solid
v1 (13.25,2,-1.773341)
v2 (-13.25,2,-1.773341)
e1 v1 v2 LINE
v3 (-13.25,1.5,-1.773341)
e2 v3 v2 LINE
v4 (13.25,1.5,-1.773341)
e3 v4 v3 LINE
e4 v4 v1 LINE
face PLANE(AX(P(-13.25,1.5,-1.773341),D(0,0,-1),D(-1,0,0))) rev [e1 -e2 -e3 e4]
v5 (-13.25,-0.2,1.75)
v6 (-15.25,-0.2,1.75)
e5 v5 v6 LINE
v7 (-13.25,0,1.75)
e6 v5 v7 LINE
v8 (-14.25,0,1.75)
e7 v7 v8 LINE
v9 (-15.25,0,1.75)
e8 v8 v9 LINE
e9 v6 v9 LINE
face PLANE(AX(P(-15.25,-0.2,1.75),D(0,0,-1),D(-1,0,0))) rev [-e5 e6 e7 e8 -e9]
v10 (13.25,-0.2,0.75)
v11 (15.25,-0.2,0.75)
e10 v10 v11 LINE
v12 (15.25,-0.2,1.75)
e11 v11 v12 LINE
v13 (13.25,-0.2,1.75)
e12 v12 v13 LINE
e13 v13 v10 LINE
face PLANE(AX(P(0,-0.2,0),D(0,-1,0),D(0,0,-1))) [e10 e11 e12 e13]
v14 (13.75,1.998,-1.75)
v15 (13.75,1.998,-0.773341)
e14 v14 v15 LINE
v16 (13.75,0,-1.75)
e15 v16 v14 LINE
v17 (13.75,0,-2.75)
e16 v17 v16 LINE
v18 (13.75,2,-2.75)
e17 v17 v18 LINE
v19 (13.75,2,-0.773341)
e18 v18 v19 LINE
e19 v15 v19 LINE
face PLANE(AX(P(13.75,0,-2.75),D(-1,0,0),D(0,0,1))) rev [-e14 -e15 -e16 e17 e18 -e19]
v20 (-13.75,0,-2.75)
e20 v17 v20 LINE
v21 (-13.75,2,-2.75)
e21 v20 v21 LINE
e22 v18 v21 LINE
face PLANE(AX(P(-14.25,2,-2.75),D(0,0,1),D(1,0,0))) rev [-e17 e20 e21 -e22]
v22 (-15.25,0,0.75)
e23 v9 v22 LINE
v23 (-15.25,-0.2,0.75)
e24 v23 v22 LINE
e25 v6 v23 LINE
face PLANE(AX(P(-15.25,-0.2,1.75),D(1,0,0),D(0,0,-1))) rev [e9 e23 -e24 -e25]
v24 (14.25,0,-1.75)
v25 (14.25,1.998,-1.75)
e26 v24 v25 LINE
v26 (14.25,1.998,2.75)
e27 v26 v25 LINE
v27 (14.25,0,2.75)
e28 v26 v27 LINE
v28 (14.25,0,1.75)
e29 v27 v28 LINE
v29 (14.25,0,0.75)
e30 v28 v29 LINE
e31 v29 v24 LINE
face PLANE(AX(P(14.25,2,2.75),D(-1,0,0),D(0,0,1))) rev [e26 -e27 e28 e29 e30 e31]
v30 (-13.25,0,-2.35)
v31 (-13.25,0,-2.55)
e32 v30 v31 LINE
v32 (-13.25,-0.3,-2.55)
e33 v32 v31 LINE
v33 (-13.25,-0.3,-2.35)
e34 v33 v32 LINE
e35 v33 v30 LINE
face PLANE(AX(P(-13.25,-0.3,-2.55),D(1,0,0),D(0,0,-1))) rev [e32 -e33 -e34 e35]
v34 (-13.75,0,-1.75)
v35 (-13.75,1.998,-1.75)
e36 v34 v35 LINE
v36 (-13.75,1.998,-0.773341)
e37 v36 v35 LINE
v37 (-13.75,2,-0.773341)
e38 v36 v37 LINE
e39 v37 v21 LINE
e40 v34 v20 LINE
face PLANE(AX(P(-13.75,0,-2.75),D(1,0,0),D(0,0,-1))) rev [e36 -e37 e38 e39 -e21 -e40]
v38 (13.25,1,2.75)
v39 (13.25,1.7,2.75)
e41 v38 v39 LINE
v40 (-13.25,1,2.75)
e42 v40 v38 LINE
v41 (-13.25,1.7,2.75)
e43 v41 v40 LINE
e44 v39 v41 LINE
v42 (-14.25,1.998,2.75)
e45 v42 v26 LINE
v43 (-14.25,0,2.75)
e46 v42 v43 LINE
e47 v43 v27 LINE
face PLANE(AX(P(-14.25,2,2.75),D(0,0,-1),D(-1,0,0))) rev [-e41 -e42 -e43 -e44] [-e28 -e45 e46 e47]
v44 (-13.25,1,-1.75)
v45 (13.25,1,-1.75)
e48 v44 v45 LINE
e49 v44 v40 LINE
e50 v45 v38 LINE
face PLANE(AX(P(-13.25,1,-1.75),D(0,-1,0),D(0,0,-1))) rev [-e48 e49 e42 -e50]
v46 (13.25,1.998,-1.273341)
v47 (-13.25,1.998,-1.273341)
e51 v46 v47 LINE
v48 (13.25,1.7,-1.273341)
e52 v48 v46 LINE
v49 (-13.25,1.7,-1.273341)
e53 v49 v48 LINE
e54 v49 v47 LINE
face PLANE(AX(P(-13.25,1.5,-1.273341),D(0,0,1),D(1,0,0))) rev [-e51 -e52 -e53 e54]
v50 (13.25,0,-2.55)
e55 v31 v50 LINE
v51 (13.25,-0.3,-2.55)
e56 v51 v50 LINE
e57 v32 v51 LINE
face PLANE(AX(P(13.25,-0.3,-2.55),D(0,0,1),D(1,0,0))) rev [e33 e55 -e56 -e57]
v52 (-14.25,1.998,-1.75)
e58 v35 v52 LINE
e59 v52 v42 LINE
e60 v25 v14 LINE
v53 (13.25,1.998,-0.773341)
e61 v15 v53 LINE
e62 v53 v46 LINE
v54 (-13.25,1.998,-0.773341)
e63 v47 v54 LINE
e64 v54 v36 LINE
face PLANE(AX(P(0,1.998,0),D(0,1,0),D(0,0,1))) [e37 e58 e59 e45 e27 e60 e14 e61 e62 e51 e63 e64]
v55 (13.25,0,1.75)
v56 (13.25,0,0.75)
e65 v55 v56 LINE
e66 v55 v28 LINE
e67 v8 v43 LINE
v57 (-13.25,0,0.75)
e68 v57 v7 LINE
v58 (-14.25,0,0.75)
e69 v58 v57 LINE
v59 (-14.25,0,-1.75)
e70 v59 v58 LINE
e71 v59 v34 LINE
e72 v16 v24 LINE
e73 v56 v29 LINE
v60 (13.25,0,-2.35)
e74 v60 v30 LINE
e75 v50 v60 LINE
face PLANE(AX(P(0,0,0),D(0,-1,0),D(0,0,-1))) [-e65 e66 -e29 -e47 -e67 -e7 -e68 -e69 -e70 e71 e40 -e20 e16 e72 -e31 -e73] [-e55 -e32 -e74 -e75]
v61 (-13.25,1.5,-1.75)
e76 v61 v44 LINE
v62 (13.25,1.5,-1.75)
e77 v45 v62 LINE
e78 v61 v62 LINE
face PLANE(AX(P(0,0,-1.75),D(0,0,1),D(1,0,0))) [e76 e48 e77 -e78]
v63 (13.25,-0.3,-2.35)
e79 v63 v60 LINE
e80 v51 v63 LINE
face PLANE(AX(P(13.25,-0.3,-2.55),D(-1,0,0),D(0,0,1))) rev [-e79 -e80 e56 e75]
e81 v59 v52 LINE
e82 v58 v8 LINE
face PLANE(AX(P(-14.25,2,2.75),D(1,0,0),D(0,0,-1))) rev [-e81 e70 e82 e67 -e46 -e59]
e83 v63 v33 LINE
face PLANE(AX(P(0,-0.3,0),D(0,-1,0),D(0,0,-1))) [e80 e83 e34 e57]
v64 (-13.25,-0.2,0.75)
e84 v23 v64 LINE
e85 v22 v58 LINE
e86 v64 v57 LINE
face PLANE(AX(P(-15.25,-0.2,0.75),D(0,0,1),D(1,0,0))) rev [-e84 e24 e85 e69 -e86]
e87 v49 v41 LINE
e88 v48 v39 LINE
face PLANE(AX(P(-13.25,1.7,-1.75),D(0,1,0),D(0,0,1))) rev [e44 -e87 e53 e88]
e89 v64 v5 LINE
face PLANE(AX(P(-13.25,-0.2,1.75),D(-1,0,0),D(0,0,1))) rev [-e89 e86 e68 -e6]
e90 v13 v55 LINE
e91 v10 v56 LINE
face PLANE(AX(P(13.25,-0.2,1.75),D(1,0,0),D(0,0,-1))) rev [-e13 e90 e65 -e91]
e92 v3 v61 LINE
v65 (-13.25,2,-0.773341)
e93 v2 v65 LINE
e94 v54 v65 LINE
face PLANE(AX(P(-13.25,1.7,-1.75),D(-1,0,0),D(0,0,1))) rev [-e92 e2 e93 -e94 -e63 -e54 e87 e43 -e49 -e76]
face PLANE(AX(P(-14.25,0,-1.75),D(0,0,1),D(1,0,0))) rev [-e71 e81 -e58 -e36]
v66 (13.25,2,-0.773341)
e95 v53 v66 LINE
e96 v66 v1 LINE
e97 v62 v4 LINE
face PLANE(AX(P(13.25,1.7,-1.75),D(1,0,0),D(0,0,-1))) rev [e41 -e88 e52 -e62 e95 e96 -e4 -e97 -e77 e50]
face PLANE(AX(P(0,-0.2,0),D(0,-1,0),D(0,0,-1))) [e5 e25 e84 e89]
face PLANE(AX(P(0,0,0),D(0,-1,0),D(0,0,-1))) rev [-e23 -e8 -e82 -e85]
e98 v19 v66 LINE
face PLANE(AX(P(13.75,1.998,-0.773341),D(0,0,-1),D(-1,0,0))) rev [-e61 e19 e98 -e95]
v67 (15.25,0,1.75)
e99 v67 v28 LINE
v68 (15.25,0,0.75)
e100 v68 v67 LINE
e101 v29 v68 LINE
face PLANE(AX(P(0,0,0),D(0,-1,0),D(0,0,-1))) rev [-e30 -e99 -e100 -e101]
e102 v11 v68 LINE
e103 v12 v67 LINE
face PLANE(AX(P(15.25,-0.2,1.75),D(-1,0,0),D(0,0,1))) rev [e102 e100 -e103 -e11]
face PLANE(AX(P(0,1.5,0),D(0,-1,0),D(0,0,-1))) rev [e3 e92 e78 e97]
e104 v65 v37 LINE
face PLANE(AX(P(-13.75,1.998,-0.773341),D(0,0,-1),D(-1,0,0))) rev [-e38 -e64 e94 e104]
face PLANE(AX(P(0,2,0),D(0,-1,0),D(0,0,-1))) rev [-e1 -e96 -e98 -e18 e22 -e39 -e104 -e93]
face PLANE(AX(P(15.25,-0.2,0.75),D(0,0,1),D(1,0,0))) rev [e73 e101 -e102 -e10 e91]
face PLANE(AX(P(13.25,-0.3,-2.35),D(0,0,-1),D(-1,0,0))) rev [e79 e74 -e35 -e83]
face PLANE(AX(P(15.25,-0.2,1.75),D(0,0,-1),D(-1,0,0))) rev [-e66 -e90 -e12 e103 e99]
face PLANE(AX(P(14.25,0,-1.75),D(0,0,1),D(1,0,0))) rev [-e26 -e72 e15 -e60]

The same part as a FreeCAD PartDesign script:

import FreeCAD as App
import Part
import Sketcher
from FreeCAD import Vector

doc = App.newDocument("Part")
params = doc.addObject("Spreadsheet::Sheet", "Params")
for row, (alias, value) in enumerate([
    ("sketch1_width", "28.5 mm"),
    ("sketch1_height", "5.5 mm"),
    ("pad1_length", "2 mm"),
    ("sketch2_height", "1 mm"),
    ("sketch2_width", "0.5 mm"),
    ("sketch3_width", "2 mm"),
    ("sketch3_height", "1 mm"),
    ("pad2_length", "0.2 mm"),
    ("sketch4_width", "26.5 mm"),
    ("sketch4_height", "0.2 mm"),
    ("pad3_length", "0.3 mm"),
    ("sketch5_width", "26.5 mm"),
    ("sketch5_height", "0.7 mm"),
    ("pocket2_length", "4.5 mm"),
    ("sketch6_width", "0.5 mm"),
    ("sketch6_width2", "28.5 mm"),
    ("sketch6_height", "4.5 mm"),
    ("pocket3_length", "0.002 mm"),
    ("sketch7_width", "26.5 mm"),
    ("sketch7_height", "0.5 mm"),
    ("pocket4_length", "0.5 mm"),
], start=1):
    params.set(f"A{row}", alias)
    params.set(f"B{row}", "=" + value)
    params.setAlias(f"B{row}", alias)

body = doc.addObject("PartDesign::Body", "Body")

sketch1 = body.newObject("Sketcher::SketchObject", "Sketch")
sketch1.AttachmentSupport = (doc.getObject("XZ_Plane"), [""])
sketch1.MapMode = "FlatFace"
sketch1.addGeometry([
    Part.LineSegment(Vector(-14, -3, 0), Vector(-14, 3, 0)),
    Part.LineSegment(Vector(-14, 3, 0), Vector(14, 3, 0)),
    Part.LineSegment(Vector(14, 3, 0), Vector(14, -3, 0)),
    Part.LineSegment(Vector(14, -3, 0), Vector(-14, -3, 0)),
], False)
sketch1.addConstraint([
    Sketcher.Constraint("Coincident", 0, 2, 1, 1),
    Sketcher.Constraint("Coincident", 1, 2, 2, 1),
    Sketcher.Constraint("Coincident", 2, 2, 3, 1),
    Sketcher.Constraint("Coincident", 3, 2, 0, 1),
    Sketcher.Constraint("Vertical", 0),
    Sketcher.Constraint("Horizontal", 1),
    Sketcher.Constraint("Vertical", 2),
    Sketcher.Constraint("Horizontal", 3),
    Sketcher.Constraint("Symmetric", 0, 2, 2, 2, -1, 1),
    Sketcher.Constraint("DistanceX", 1, 1, 1, 2, 28.5),
    Sketcher.Constraint("DistanceY", 0, 1, 0, 2, 5.5),
])
sketch1.setExpression("Constraints[9]", "Params.sketch1_width")
sketch1.setExpression("Constraints[10]", "Params.sketch1_height")
pad1 = body.newObject("PartDesign::Pad", "Pad")
pad1.Profile = sketch1
pad1.setExpression("Length", "Params.pad1_length")
pad1.Reversed = True

sketch2 = body.newObject("Sketcher::SketchObject", "Sketch001")
sketch2.AttachmentSupport = (doc.getObject("XZ_Plane"), [""])
sketch2.MapMode = "FlatFace"
sketch2.AttachmentOffset = App.Placement(Vector(0, 0, -2), App.Rotation())
sketch2.addGeometry([
    Part.LineSegment(Vector(-14.2, -2.8, 0), Vector(-14.2, -1.8, 0)),
    Part.LineSegment(Vector(-14.2, -1.8, 0), Vector(-13.8, -1.8, 0)),
    Part.LineSegment(Vector(-13.8, -1.8, 0), Vector(-13.8, -2.8, 0)),
    Part.LineSegment(Vector(-13.8, -2.8, 0), Vector(-14.2, -2.8, 0)),
    Part.LineSegment(Vector(13.8, -2.8, 0), Vector(13.8, -1.8, 0)),
    Part.LineSegment(Vector(13.8, -1.8, 0), Vector(14.2, -1.8, 0)),
    Part.LineSegment(Vector(14.2, -1.8, 0), Vector(14.2, -2.8, 0)),
    Part.LineSegment(Vector(14.2, -2.8, 0), Vector(13.8, -2.8, 0)),
], False)
sketch2.addConstraint([
    Sketcher.Constraint("Coincident", 0, 2, 1, 1),
    Sketcher.Constraint("Coincident", 1, 2, 2, 1),
    Sketcher.Constraint("Coincident", 2, 2, 3, 1),
    Sketcher.Constraint("Coincident", 3, 2, 0, 1),
    Sketcher.Constraint("Coincident", 4, 2, 5, 1),
    Sketcher.Constraint("Coincident", 5, 2, 6, 1),
    Sketcher.Constraint("Coincident", 6, 2, 7, 1),
    Sketcher.Constraint("Coincident", 7, 2, 4, 1),
    Sketcher.Constraint("Vertical", 0),
    Sketcher.Constraint("Horizontal", 1),
    Sketcher.Constraint("Vertical", 2),
    Sketcher.Constraint("Horizontal", 3),
    Sketcher.Constraint("Vertical", 4),
    Sketcher.Constraint("Horizontal", 5),
    Sketcher.Constraint("Vertical", 6),
    Sketcher.Constraint("Horizontal", 7),
    Sketcher.Constraint("Symmetric", 1, 2, 4, 2, -2),
    Sketcher.Constraint("Symmetric", 3, 2, 6, 2, -2),
    Sketcher.Constraint("DistanceY", 0, 1, 0, 2, 1.0),
    Sketcher.Constraint("DistanceX", 1, 1, 1, 2, 0.5),
    Sketcher.Constraint("DistanceX", 0, 2, 4, 2, 28.0),
    Sketcher.Constraint("DistanceY", 0, 2, -1, 1, 1.75),
])
sketch2.setExpression("Constraints[18]", "Params.sketch2_height")
sketch2.setExpression("Constraints[19]", "Params.sketch2_width")
pocket1 = body.newObject("PartDesign::Pocket", "Pocket")
pocket1.Profile = sketch2
pocket1.Type = "ThroughAll"
pocket1.Reversed = True

sketch3 = body.newObject("Sketcher::SketchObject", "Sketch002")
sketch3.AttachmentSupport = (doc.getObject("XZ_Plane"), [""])
sketch3.MapMode = "FlatFace"
sketch3.addGeometry([
    Part.LineSegment(Vector(-15.2, 1.8, 0), Vector(-15.2, 0.8, 0)),
    Part.LineSegment(Vector(-15.2, 0.8, 0), Vector(-13.2, 0.8, 0)),
    Part.LineSegment(Vector(-13.2, 0.8, 0), Vector(-13.2, 1.8, 0)),
    Part.LineSegment(Vector(-13.2, 1.8, 0), Vector(-15.2, 1.8, 0)),
    Part.LineSegment(Vector(13.2, 1.8, 0), Vector(13.2, 0.8, 0)),
    Part.LineSegment(Vector(13.2, 0.8, 0), Vector(15.2, 0.8, 0)),
    Part.LineSegment(Vector(15.2, 0.8, 0), Vector(15.2, 1.8, 0)),
    Part.LineSegment(Vector(15.2, 1.8, 0), Vector(13.2, 1.8, 0)),
], False)
sketch3.addConstraint([
    Sketcher.Constraint("Coincident", 0, 2, 1, 1),
    Sketcher.Constraint("Coincident", 1, 2, 2, 1),
    Sketcher.Constraint("Coincident", 2, 2, 3, 1),
    Sketcher.Constraint("Coincident", 3, 2, 0, 1),
    Sketcher.Constraint("Coincident", 4, 2, 5, 1),
    Sketcher.Constraint("Coincident", 5, 2, 6, 1),
    Sketcher.Constraint("Coincident", 6, 2, 7, 1),
    Sketcher.Constraint("Coincident", 7, 2, 4, 1),
    Sketcher.Constraint("Vertical", 0),
    Sketcher.Constraint("Horizontal", 1),
    Sketcher.Constraint("Vertical", 2),
    Sketcher.Constraint("Horizontal", 3),
    Sketcher.Constraint("Vertical", 4),
    Sketcher.Constraint("Horizontal", 5),
    Sketcher.Constraint("Vertical", 6),
    Sketcher.Constraint("Horizontal", 7),
    Sketcher.Constraint("Symmetric", 1, 2, 4, 2, -2),
    Sketcher.Constraint("Symmetric", 3, 2, 6, 2, -2),
    Sketcher.Constraint("DistanceX", 1, 1, 1, 2, 2.0),
    Sketcher.Constraint("DistanceY", 0, 2, 0, 1, 1.0),
    Sketcher.Constraint("DistanceX", 1, 2, 4, 2, 26.5),
    Sketcher.Constraint("DistanceY", -1, 1, 0, 2, 0.75),
])
sketch3.setExpression("Constraints[18]", "Params.sketch3_width")
sketch3.setExpression("Constraints[19]", "Params.sketch3_height")
pad2 = body.newObject("PartDesign::Pad", "Pad001")
pad2.Profile = sketch3
pad2.setExpression("Length", "Params.pad2_length")

sketch4 = body.newObject("Sketcher::SketchObject", "Sketch003")
sketch4.AttachmentSupport = (doc.getObject("XZ_Plane"), [""])
sketch4.MapMode = "FlatFace"
sketch4.addGeometry([
    Part.LineSegment(Vector(-13.25, -2.35, 0), Vector(-13.25, -2.55, 0)),
    Part.LineSegment(Vector(-13.25, -2.55, 0), Vector(13.25, -2.55, 0)),
    Part.LineSegment(Vector(13.25, -2.55, 0), Vector(13.25, -2.35, 0)),
    Part.LineSegment(Vector(13.25, -2.35, 0), Vector(-13.25, -2.35, 0)),
], False)
sketch4.addConstraint([
    Sketcher.Constraint("Coincident", 0, 2, 1, 1),
    Sketcher.Constraint("Coincident", 1, 2, 2, 1),
    Sketcher.Constraint("Coincident", 2, 2, 3, 1),
    Sketcher.Constraint("Coincident", 3, 2, 0, 1),
    Sketcher.Constraint("Vertical", 0),
    Sketcher.Constraint("Horizontal", 1),
    Sketcher.Constraint("Vertical", 2),
    Sketcher.Constraint("Horizontal", 3),
    Sketcher.Constraint("DistanceX", 1, 1, 1, 2, 26.5),
    Sketcher.Constraint("DistanceY", 0, 2, 0, 1, 0.2),
    Sketcher.Constraint("DistanceX", 0, 2, -1, 1, 13.25),
    Sketcher.Constraint("DistanceY", 0, 2, -1, 1, 2.55),
])
sketch4.setExpression("Constraints[8]", "Params.sketch4_width")
sketch4.setExpression("Constraints[9]", "Params.sketch4_height")
pad3 = body.newObject("PartDesign::Pad", "Pad002")
pad3.Profile = sketch4
pad3.setExpression("Length", "Params.pad3_length")

sketch5 = body.newObject("Sketcher::SketchObject", "Sketch004")
sketch5.AttachmentSupport = (doc.getObject("XY_Plane"), [""])
sketch5.MapMode = "FlatFace"
sketch5.AttachmentOffset = App.Placement(Vector(0, 0, 2.75), App.Rotation())
sketch5.addGeometry([
    Part.LineSegment(Vector(-13.2, 1.7, 0), Vector(-13.2, 1, 0)),
    Part.LineSegment(Vector(-13.2, 1, 0), Vector(13.2, 1, 0)),
    Part.LineSegment(Vector(13.2, 1, 0), Vector(13.2, 1.7, 0)),
    Part.LineSegment(Vector(13.2, 1.7, 0), Vector(-13.2, 1.7, 0)),
], False)
sketch5.addConstraint([
    Sketcher.Constraint("Coincident", 0, 2, 1, 1),
    Sketcher.Constraint("Coincident", 1, 2, 2, 1),
    Sketcher.Constraint("Coincident", 2, 2, 3, 1),
    Sketcher.Constraint("Coincident", 3, 2, 0, 1),
    Sketcher.Constraint("Vertical", 0),
    Sketcher.Constraint("Horizontal", 1),
    Sketcher.Constraint("Vertical", 2),
    Sketcher.Constraint("Horizontal", 3),
    Sketcher.Constraint("DistanceX", 1, 1, 1, 2, 26.5),
    Sketcher.Constraint("DistanceY", 0, 2, 0, 1, 0.7),
    Sketcher.Constraint("DistanceY", -1, 1, 0, 2, 1.0),
    Sketcher.Constraint("DistanceX", 0, 2, -1, 1, 13.25),
])
sketch5.setExpression("Constraints[8]", "Params.sketch5_width")
sketch5.setExpression("Constraints[9]", "Params.sketch5_height")
pocket2 = body.newObject("PartDesign::Pocket", "Pocket001")
pocket2.Profile = sketch5
pocket2.setExpression("Length", "Params.pocket2_length")

sketch6 = body.newObject("Sketcher::SketchObject", "Sketch005")
sketch6.AttachmentSupport = (doc.getObject("XZ_Plane"), [""])
sketch6.MapMode = "FlatFace"
sketch6.AttachmentOffset = App.Placement(Vector(0, 0, -2), App.Rotation())
sketch6.addGeometry([
    Part.LineSegment(Vector(-13.8, -0.8, 0), Vector(-13.8, -1.8, 0)),
    Part.LineSegment(Vector(-13.8, -1.8, 0), Vector(-14.2, -1.8, 0)),
    Part.LineSegment(Vector(-14.2, -1.8, 0), Vector(-14.2, 2.8, 0)),
    Part.LineSegment(Vector(-14.2, 2.8, 0), Vector(14.2, 2.8, 0)),
    Part.LineSegment(Vector(14.2, 2.8, 0), Vector(14.2, -1.8, 0)),
    Part.LineSegment(Vector(14.2, -1.8, 0), Vector(13.8, -1.8, 0)),
    Part.LineSegment(Vector(13.8, -1.8, 0), Vector(13.8, -0.8, 0)),
    Part.LineSegment(Vector(13.8, -0.8, 0), Vector(13.2, -0.8, 0)),
    Part.LineSegment(Vector(13.2, -0.8, 0), Vector(13.2, -1.3, 0)),
    Part.LineSegment(Vector(13.2, -1.3, 0), Vector(-13.2, -1.3, 0)),
    Part.LineSegment(Vector(-13.2, -1.3, 0), Vector(-13.2, -0.8, 0)),
    Part.LineSegment(Vector(-13.2, -0.8, 0), Vector(-13.8, -0.8, 0)),
], False)
sketch6.addConstraint([
    Sketcher.Constraint("Coincident", 0, 2, 1, 1),
    Sketcher.Constraint("Coincident", 1, 2, 2, 1),
    Sketcher.Constraint("Coincident", 2, 2, 3, 1),
    Sketcher.Constraint("Coincident", 3, 2, 4, 1),
    Sketcher.Constraint("Coincident", 4, 2, 5, 1),
    Sketcher.Constraint("Coincident", 5, 2, 6, 1),
    Sketcher.Constraint("Coincident", 6, 2, 7, 1),
    Sketcher.Constraint("Coincident", 7, 2, 8, 1),
    Sketcher.Constraint("Coincident", 8, 2, 9, 1),
    Sketcher.Constraint("Coincident", 9, 2, 10, 1),
    Sketcher.Constraint("Coincident", 10, 2, 11, 1),
    Sketcher.Constraint("Coincident", 11, 2, 0, 1),
    Sketcher.Constraint("Vertical", 0),
    Sketcher.Constraint("Horizontal", 1),
    Sketcher.Constraint("Vertical", 2),
    Sketcher.Constraint("Horizontal", 3),
    Sketcher.Constraint("Vertical", 4),
    Sketcher.Constraint("Horizontal", 5),
    Sketcher.Constraint("Vertical", 6),
    Sketcher.Constraint("Horizontal", 7),
    Sketcher.Constraint("Vertical", 8),
    Sketcher.Constraint("Horizontal", 9),
    Sketcher.Constraint("Vertical", 10),
    Sketcher.Constraint("Horizontal", 11),
    Sketcher.Constraint("Symmetric", 1, 2, 4, 2, -2),
    Sketcher.Constraint("Symmetric", 7, 2, 10, 2, -2),
    Sketcher.Constraint("Equal", 1, 5),
    Sketcher.Constraint("Equal", 5, 7),
    Sketcher.Constraint("Equal", 11, 8),
    Sketcher.Constraint("DistanceX", 1, 2, 1, 1, 0.5),
    Sketcher.Constraint("DistanceX", 3, 1, 3, 2, 28.5),
    Sketcher.Constraint("DistanceY", 2, 1, 2, 2, 4.5),
    Sketcher.Constraint("DistanceY", 0, 2, -1, 1, 1.75),
    Sketcher.Constraint("DistanceY", 0, 2, 0, 1, 0.976659),
])
sketch6.setExpression("Constraints[29]", "Params.sketch6_width")
sketch6.setExpression("Constraints[30]", "Params.sketch6_width2")
sketch6.setExpression("Constraints[31]", "Params.sketch6_height")
pocket3 = body.newObject("PartDesign::Pocket", "Pocket002")
pocket3.Profile = sketch6
pocket3.setExpression("Length", "Params.pocket3_length")
pocket3.Reversed = True

sketch7 = body.newObject("Sketcher::SketchObject", "Sketch006")
sketch7.AttachmentSupport = (doc.getObject("XZ_Plane"), [""])
sketch7.MapMode = "FlatFace"
sketch7.AttachmentOffset = App.Placement(Vector(0, 0, -2), App.Rotation())
sketch7.addGeometry([
    Part.LineSegment(Vector(-13.2, -1.8, 0), Vector(-13.2, -1.3, 0)),
    Part.LineSegment(Vector(-13.2, -1.3, 0), Vector(13.2, -1.3, 0)),
    Part.LineSegment(Vector(13.2, -1.3, 0), Vector(13.2, -1.8, 0)),
    Part.LineSegment(Vector(13.2, -1.8, 0), Vector(-13.2, -1.8, 0)),
], False)
sketch7.addConstraint([
    Sketcher.Constraint("Coincident", 0, 2, 1, 1),
    Sketcher.Constraint("Coincident", 1, 2, 2, 1),
    Sketcher.Constraint("Coincident", 2, 2, 3, 1),
    Sketcher.Constraint("Coincident", 3, 2, 0, 1),
    Sketcher.Constraint("Vertical", 0),
    Sketcher.Constraint("Horizontal", 1),
    Sketcher.Constraint("Vertical", 2),
    Sketcher.Constraint("Horizontal", 3),
    Sketcher.Constraint("DistanceX", 1, 1, 1, 2, 26.5),
    Sketcher.Constraint("DistanceY", 0, 1, 0, 2, 0.5),
    Sketcher.Constraint("DistanceX", 0, 2, -1, 1, 13.25),
    Sketcher.Constraint("DistanceY", 0, 2, -1, 1, 1.273341),
])
sketch7.setExpression("Constraints[8]", "Params.sketch7_width")
sketch7.setExpression("Constraints[9]", "Params.sketch7_height")
pocket4 = body.newObject("PartDesign::Pocket", "Pocket003")
pocket4.Profile = sketch7
pocket4.setExpression("Length", "Params.pocket4_length")
pocket4.Reversed = True

doc.recompute()
